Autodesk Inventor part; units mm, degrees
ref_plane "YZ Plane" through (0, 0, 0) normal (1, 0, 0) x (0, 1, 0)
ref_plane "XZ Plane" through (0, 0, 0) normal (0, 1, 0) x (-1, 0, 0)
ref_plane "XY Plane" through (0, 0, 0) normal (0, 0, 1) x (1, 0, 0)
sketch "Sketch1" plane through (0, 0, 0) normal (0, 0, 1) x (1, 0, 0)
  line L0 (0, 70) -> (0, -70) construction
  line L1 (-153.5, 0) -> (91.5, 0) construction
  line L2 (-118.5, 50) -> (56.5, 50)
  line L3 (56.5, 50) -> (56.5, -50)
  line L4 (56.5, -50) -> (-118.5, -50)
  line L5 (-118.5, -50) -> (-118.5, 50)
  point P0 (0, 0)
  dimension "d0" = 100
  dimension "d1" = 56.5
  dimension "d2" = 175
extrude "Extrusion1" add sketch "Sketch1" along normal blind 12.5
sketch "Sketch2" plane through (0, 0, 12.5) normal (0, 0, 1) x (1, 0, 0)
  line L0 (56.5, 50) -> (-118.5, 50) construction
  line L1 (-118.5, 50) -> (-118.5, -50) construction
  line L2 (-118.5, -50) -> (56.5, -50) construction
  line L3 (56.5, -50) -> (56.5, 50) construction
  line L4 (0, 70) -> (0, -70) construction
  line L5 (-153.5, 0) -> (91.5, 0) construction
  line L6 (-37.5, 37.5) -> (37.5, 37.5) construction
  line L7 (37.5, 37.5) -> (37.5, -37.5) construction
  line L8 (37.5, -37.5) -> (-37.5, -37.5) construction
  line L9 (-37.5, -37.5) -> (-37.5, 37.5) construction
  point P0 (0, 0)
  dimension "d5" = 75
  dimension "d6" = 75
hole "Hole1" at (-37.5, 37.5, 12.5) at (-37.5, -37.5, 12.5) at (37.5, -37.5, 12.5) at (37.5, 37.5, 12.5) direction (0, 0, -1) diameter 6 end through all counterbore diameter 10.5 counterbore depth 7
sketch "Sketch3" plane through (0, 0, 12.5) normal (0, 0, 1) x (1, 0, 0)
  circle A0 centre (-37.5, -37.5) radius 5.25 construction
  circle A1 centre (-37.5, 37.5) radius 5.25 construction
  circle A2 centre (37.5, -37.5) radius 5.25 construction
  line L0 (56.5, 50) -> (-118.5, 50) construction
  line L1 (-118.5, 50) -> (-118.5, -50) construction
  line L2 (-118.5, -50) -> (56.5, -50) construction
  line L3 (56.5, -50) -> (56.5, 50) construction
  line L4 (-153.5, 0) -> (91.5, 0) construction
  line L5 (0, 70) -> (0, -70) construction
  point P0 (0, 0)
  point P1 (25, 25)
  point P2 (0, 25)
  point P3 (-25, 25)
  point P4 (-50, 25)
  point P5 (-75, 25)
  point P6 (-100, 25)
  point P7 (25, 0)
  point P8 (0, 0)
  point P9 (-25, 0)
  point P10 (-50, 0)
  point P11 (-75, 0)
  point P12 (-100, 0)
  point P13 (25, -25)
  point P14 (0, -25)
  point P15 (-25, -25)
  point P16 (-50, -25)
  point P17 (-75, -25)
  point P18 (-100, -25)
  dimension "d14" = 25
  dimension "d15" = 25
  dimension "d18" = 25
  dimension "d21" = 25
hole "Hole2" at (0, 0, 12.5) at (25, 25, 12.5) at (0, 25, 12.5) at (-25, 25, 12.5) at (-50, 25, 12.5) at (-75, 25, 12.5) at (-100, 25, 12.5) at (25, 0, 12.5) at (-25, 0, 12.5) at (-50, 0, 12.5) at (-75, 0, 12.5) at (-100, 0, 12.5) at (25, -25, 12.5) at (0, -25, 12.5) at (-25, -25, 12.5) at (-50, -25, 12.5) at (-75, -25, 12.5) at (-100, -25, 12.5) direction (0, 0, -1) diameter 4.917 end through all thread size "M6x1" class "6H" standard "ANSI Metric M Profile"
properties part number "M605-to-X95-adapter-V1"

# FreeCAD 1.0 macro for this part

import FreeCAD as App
import Part
import Sketcher

V = App.Vector
Q = App.Units.Quantity

doc = App.newDocument("Part")
params = doc.addObject("Spreadsheet::Sheet", "Params")
for row, (alias, value) in enumerate([
    ("sketch1_width", "175 mm"),
    ("sketch1_height", "100 mm"),
    ("pad1_length", "12.5 mm"),
    ("sketch2_diameter", "6 mm"),
    ("hole_diameter", "6 mm"),
    ("hole_cbore_diameter", "10.5 mm"),
    ("hole_cbore_depth", "7 mm"),
    ("hole2_diameter", "4.917 mm"),
], start=1):
    params.set(f"A{row}", alias)
    params.set(f"B{row}", "=" + value)
    params.setAlias(f"B{row}", alias)

body = doc.addObject("PartDesign::Body", "Body")

# Sketch on XY plane
sketch1 = body.newObject("Sketcher::SketchObject", "Sketch")
sketch1.AttachmentSupport = (doc.getObject("XY_Plane"), [""])
sketch1.MapMode = "FlatFace"
sketch1.addGeometry([
    Part.LineSegment(V(56, 50, 0), V(-118, 50, 0)),
    Part.LineSegment(V(-118, 50, 0), V(-118, -50, 0)),
    Part.LineSegment(V(-118, -50, 0), V(56, -50, 0)),
    Part.LineSegment(V(56, -50, 0), V(56, 50, 0)),
], False)
sketch1.addConstraint([
    Sketcher.Constraint("Coincident", 0, 2, 1, 1),
    Sketcher.Constraint("Coincident", 1, 2, 2, 1),
    Sketcher.Constraint("Coincident", 2, 2, 3, 1),
    Sketcher.Constraint("Coincident", 3, 2, 0, 1),
    Sketcher.Constraint("Horizontal", 0),
    Sketcher.Constraint("Vertical", 1),
    Sketcher.Constraint("Horizontal", 2),
    Sketcher.Constraint("Vertical", 3),
    Sketcher.Constraint("DistanceX", 0, 2, 0, 1, Q("175 mm")),
    Sketcher.Constraint("DistanceY", 1, 2, 1, 1, Q("100 mm")),
    Sketcher.Constraint("DistanceX", -1, 1, 2, 2, Q("56.5 mm")),
    Sketcher.Constraint("DistanceY", -1, 1, 0, 2, Q("50 mm")),
])
sketch1.setExpression("Constraints[8]", "Params.sketch1_width")
sketch1.setExpression("Constraints[9]", "Params.sketch1_height")
pad1 = body.newObject("PartDesign::Pad", "Pad")
pad1.Profile = sketch1
pad1.setExpression("Length", "Params.pad1_length")

# Sketch on XY plane
sketch2 = body.newObject("Sketcher::SketchObject", "Sketch001")
sketch2.AttachmentSupport = (doc.getObject("XY_Plane"), [""])
sketch2.MapMode = "FlatFace"
sketch2.AttachmentOffset = App.Placement(V(0, 0, 12.5), App.Rotation())
sketch2.addGeometry([
    Part.Circle(V(-37.5, 37.5, 0), V(0, 0, 1), 3),
    Part.Circle(V(-37.5, -37.5, 0), V(0, 0, 1), 3),
    Part.Circle(V(37.5, -37.5, 0), V(0, 0, 1), 3),
    Part.Circle(V(37.5, 37.5, 0), V(0, 0, 1), 3),
], False)
sketch2.addConstraint([
    Sketcher.Constraint("Equal", 0, 1),
    Sketcher.Constraint("Equal", 1, 2),
    Sketcher.Constraint("Equal", 2, 3),
    Sketcher.Constraint("Symmetric", 0, 3, 2, 3, -1, 1),
    Sketcher.Constraint("Symmetric", 1, 3, 3, 3, -1, 1),
    Sketcher.Constraint("Symmetric", 1, 3, 2, 3, -2),
    Sketcher.Constraint("Diameter", 0, Q("6 mm")),
    Sketcher.Constraint("DistanceY", 1, 3, 0, 3, Q("75 mm")),
    Sketcher.Constraint("DistanceX", 1, 3, 2, 3, Q("75 mm")),
])
sketch2.setExpression("Constraints[6]", "Params.sketch2_diameter")
doc.recompute()
hole = body.newObject("PartDesign::Hole", "Hole")
hole.Profile = sketch2
hole.ThreadType = "None"
hole.setExpression("Diameter", "Params.hole_diameter")
hole.DepthType = "ThroughAll"
hole.HoleCutType = "Counterbore"
hole.setExpression("HoleCutDiameter", "Params.hole_cbore_diameter")
hole.setExpression("HoleCutDepth", "Params.hole_cbore_depth")

# Sketch on XY plane
sketch3 = body.newObject("Sketcher::SketchObject", "Sketch002")
sketch3.AttachmentSupport = (doc.getObject("XY_Plane"), [""])
sketch3.MapMode = "FlatFace"
sketch3.AttachmentOffset = App.Placement(V(0, 0, 12.5), App.Rotation())
sketch3.addGeometry([
    Part.Circle(V(0, 0, 0), V(0, 0, 1), 2.5),  # 0
    Part.Circle(V(25, 25, 0), V(0, 0, 1), 2.5),  # 1
    Part.Circle(V(0, 25, 0), V(0, 0, 1), 2.5),  # 2
    Part.Circle(V(-25, 25, 0), V(0, 0, 1), 2.5),  # 3
    Part.Circle(V(-50, 25, 0), V(0, 0, 1), 2.5),  # 4
    Part.Circle(V(-75, 25, 0), V(0, 0, 1), 2.5),  # 5
    Part.Circle(V(-100, 25, 0), V(0, 0, 1), 2.5),  # 6
    Part.Circle(V(25, 0, 0), V(0, 0, 1), 2.5),  # 7
    Part.Circle(V(-25, 0, 0), V(0, 0, 1), 2.5),  # 8
    Part.Circle(V(-50, 0, 0), V(0, 0, 1), 2.5),  # 9
    Part.Circle(V(-75, 0, 0), V(0, 0, 1), 2.5),  # 10
    Part.Circle(V(-100, 0, 0), V(0, 0, 1), 2.5),  # 11
    Part.Circle(V(25, -25, 0), V(0, 0, 1), 2.5),  # 12
    Part.Circle(V(0, -25, 0), V(0, 0, 1), 2.5),  # 13
    Part.Circle(V(-25, -25, 0), V(0, 0, 1), 2.5),  # 14
    Part.Circle(V(-50, -25, 0), V(0, 0, 1), 2.5),  # 15
    Part.Circle(V(-75, -25, 0), V(0, 0, 1), 2.5),  # 16
    Part.Circle(V(-100, -25, 0), V(0, 0, 1), 2.5),  # 17
], False)
sketch3.addConstraint([
    Sketcher.Constraint("Coincident", 0, 3, -1, 1),
    Sketcher.Constraint("Equal", 0, 1),
    Sketcher.Constraint("Equal", 1, 2),
    Sketcher.Constraint("Equal", 2, 3),
    Sketcher.Constraint("Equal", 3, 4),
    Sketcher.Constraint("Equal", 4, 5),
    Sketcher.Constraint("Equal", 5, 6),
    Sketcher.Constraint("Equal", 6, 7),
    Sketcher.Constraint("Equal", 7, 8),
    Sketcher.Constraint("Equal", 8, 9),
    Sketcher.Constraint("Equal", 9, 10),
    Sketcher.Constraint("Equal", 10, 11),
    Sketcher.Constraint("Equal", 11, 12),
    Sketcher.Constraint("Equal", 12, 13),
    Sketcher.Constraint("Equal", 13, 14),
    Sketcher.Constraint("Equal", 14, 15),
    Sketcher.Constraint("Equal", 15, 16),
    Sketcher.Constraint("Equal", 16, 17),
    Sketcher.Constraint("Symmetric", 7, 3, 8, 3, -1, 1),
    Sketcher.Constraint("Symmetric", 3, 3, 12, 3, -1, 1),
    Sketcher.Constraint("Symmetric", 2, 3, 13, 3, -1, 1),
    Sketcher.Constraint("Symmetric", 1, 3, 14, 3, -1, 1),
    Sketcher.Constraint("Symmetric", 1, 3, 3, 3, -2),
    Sketcher.Constraint("Symmetric", 4, 3, 15, 3, -1),
    Sketcher.Constraint("Symmetric", 5, 3, 16, 3, -1),
    Sketcher.Constraint("Symmetric", 6, 3, 17, 3, -1),
    Sketcher.Constraint("PointOnObject", 2, 3, -2),
    Sketcher.Constraint("PointOnObject", 7, 3, -1),
    Sketcher.Constraint("PointOnObject", 9, 3, -1),
    Sketcher.Constraint("PointOnObject", 10, 3, -1),
    Sketcher.Constraint("PointOnObject", 11, 3, -1),
    Sketcher.Constraint("Horizontal", 1, 3, 2, 3),
    Sketcher.Constraint("Horizontal", 3, 3, 4, 3),
    Sketcher.Constraint("Horizontal", 4, 3, 5, 3),
    Sketcher.Constraint("Horizontal", 5, 3, 6, 3),
    Sketcher.Constraint("Vertical", 1, 3, 7, 3),
    Sketcher.Constraint("Vertical", 4, 3, 9, 3),
    Sketcher.Constraint("Vertical", 5, 3, 10, 3),
    Sketcher.Constraint("Vertical", 6, 3, 11, 3),
    Sketcher.Constraint("Diameter", 0, Q("4.917 mm")),
    Sketcher.Constraint("DistanceX", -1, 1, 1, 3, Q("25 mm")),
    Sketcher.Constraint("DistanceY", -1, 1, 1, 3, Q("25 mm")),
    Sketcher.Constraint("DistanceX", 4, 3, -1, 1, Q("50 mm")),
    Sketcher.Constraint("DistanceX", 5, 3, -1, 1, Q("75 mm")),
    Sketcher.Constraint("DistanceX", 6, 3, -1, 1, Q("100 mm")),
])
doc.recompute()
hole2 = body.newObject("PartDesign::Hole", "Hole001")
hole2.Profile = sketch3
hole2.ThreadType = "None"
hole2.setExpression("Diameter", "Params.hole2_diameter")
hole2.DepthType = "ThroughAll"

doc.recompute()
